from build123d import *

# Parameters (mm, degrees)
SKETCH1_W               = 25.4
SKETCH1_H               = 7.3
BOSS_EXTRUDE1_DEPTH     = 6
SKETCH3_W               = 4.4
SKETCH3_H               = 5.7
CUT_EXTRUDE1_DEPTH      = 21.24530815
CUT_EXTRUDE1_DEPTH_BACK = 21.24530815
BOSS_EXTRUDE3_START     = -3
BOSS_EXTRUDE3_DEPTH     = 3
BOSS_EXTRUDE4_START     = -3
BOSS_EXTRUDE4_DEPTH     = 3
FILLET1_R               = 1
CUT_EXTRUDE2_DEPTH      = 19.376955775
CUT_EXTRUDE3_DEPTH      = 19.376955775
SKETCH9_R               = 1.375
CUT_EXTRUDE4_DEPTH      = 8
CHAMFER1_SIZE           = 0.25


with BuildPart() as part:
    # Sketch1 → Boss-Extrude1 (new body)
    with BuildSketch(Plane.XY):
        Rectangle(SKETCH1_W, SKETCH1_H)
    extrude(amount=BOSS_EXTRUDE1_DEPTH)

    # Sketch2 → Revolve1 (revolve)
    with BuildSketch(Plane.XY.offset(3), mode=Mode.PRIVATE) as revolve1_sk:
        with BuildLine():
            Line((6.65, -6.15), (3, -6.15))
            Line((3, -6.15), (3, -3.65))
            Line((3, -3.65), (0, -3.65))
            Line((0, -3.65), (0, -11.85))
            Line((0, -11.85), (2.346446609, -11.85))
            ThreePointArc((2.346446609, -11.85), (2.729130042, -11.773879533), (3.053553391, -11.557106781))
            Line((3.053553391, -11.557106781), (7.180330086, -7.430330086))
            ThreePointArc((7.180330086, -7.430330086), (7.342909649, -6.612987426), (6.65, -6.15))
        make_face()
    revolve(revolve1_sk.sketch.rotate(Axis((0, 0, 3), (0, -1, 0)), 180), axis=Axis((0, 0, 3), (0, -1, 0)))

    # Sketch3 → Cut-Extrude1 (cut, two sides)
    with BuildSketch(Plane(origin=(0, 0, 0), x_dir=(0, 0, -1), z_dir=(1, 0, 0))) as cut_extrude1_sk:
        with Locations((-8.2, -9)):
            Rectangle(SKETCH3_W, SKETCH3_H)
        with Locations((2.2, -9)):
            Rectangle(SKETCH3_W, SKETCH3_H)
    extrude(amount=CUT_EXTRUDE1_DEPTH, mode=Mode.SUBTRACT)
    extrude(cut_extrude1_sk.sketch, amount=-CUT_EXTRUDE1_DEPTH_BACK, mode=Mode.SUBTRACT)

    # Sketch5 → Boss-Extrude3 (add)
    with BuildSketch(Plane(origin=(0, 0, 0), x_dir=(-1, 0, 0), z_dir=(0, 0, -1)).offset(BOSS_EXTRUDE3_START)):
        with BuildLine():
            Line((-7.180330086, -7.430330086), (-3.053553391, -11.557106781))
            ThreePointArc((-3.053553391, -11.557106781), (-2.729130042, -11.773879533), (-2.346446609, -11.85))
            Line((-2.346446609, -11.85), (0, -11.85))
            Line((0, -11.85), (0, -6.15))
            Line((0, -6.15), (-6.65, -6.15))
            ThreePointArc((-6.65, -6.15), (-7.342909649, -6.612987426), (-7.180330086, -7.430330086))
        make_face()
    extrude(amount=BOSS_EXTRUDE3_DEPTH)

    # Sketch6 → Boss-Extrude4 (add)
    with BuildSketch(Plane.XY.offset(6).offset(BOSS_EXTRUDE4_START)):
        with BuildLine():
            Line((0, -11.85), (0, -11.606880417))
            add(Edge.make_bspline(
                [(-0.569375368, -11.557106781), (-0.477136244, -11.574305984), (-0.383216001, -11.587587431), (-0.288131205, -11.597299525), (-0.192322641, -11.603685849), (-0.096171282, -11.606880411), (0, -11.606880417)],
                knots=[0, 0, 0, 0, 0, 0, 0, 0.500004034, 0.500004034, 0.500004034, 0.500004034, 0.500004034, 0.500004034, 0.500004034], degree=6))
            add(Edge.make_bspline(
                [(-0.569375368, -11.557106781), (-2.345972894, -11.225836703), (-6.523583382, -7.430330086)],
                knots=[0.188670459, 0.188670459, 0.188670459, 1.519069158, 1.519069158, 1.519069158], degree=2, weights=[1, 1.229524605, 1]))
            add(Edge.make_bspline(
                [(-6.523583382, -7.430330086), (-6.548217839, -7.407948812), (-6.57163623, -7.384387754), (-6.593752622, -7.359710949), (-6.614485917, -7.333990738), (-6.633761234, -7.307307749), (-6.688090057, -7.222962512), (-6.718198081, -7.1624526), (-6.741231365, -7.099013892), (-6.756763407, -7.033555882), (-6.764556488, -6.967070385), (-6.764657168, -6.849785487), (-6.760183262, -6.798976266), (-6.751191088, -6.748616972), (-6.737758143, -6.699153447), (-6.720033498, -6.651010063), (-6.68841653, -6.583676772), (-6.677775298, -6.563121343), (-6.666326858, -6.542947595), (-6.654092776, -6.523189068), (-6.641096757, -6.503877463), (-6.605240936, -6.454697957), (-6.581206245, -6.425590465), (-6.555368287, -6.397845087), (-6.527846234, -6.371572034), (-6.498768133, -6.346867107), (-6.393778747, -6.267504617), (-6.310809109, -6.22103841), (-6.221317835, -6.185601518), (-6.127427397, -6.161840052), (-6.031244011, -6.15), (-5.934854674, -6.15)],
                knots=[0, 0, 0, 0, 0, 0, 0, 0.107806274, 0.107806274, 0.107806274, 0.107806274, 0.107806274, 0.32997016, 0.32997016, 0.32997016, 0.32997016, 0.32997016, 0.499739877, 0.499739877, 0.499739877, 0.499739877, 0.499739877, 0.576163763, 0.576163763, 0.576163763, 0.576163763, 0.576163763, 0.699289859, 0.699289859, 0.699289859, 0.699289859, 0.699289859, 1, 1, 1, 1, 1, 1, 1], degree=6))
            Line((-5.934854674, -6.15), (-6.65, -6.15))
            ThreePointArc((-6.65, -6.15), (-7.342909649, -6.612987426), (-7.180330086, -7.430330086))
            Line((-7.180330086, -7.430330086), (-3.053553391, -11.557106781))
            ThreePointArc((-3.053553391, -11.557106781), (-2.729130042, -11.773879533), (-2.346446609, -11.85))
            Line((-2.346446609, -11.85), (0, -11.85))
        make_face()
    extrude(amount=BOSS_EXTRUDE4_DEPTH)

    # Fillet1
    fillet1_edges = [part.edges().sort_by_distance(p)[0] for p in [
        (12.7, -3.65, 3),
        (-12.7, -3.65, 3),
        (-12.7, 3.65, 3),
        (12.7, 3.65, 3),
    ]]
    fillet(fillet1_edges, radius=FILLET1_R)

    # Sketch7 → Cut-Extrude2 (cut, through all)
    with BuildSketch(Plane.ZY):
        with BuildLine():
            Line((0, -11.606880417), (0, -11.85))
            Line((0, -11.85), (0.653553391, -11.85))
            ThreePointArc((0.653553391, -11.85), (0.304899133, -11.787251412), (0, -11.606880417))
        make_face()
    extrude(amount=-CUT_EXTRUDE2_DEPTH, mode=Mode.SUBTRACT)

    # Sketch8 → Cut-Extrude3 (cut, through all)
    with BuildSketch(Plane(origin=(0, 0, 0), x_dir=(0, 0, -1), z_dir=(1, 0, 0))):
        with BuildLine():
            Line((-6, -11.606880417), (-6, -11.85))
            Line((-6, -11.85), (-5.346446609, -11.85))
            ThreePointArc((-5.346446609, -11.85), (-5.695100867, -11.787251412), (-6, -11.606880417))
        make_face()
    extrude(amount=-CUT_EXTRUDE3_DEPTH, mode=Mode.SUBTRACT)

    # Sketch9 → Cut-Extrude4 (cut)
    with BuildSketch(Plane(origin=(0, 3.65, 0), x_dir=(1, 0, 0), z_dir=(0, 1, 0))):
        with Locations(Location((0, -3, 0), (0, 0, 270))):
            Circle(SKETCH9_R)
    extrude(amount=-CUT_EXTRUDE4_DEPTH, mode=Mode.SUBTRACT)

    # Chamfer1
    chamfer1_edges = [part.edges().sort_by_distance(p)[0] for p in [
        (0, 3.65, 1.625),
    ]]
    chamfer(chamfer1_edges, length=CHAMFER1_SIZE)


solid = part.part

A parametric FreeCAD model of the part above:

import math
import FreeCAD as App
import Part
import Sketcher

V = App.Vector
Q = App.Units.Quantity


def edges_at(feature, points):
    """Names of the edges that pass closest to the given points."""
    edges = feature.Shape.Edges
    near = lambda p: min(range(len(edges)), key=lambda i: edges[i].distToShape(Part.Vertex(*p))[0])
    return sorted({f"Edge{near(p) + 1}" for p in points})

doc = App.newDocument("Part")
body = doc.addObject("PartDesign::Body", "Body")

# Sketch on XY plane
sketch1 = doc.addObject("Sketcher::SketchObject", "Sketch")
body.addObject(sketch1)
sketch1.AttachmentSupport = (doc.XY_Plane, [""])
sketch1.MapMode = "FlatFace"
sketch1.addGeometry([
    Part.LineSegment(V(-13, 4, 0), V(-13, -4, 0)),
    Part.LineSegment(V(-13, -4, 0), V(13, -4, 0)),
    Part.LineSegment(V(13, -4, 0), V(13, 4, 0)),
    Part.LineSegment(V(13, 4, 0), V(-13, 4, 0)),
], False)
sketch1.addConstraint([
    Sketcher.Constraint("Coincident", 0, 2, 1, 1),
    Sketcher.Constraint("Coincident", 1, 2, 2, 1),
    Sketcher.Constraint("Coincident", 2, 2, 3, 1),
    Sketcher.Constraint("Coincident", 3, 2, 0, 1),
    Sketcher.Constraint("Vertical", 0),
    Sketcher.Constraint("Horizontal", 1),
    Sketcher.Constraint("Vertical", 2),
    Sketcher.Constraint("Horizontal", 3),
    Sketcher.Constraint("Symmetric", 0, 2, 2, 2, -1, 1),
    Sketcher.Constraint("DistanceX", 1, 1, 1, 2, Q("25.4 mm")),
    Sketcher.Constraint("DistanceY", 0, 2, 0, 1, Q("7.3 mm")),
])
pad1 = doc.addObject("PartDesign::Pad", "Pad")
body.addObject(pad1)
pad1.Profile = sketch1
pad1.Length = 6

# Sketch on XY plane
sketch2 = doc.addObject("Sketcher::SketchObject", "Sketch001")
body.addObject(sketch2)
sketch2.AttachmentSupport = (doc.XY_Plane, [""])
sketch2.MapMode = "FlatFace"
sketch2.AttachmentOffset = App.Placement(V(0, 0, 3), App.Rotation())
sketch2.addGeometry([
    Part.LineSegment(V(6.7, -6.2, 0), V(3, -6.2, 0)),  # 0
    Part.LineSegment(V(3, -6.2, 0), V(3, -3.6, 0)),  # 1
    Part.LineSegment(V(3, -3.6, 0), V(0, -3.6, 0)),  # 2
    Part.LineSegment(V(0, -3.6, 0), V(0, -11.8, 0)),  # 3
    Part.LineSegment(V(0, -11.8, 0), V(2.3, -11.8, 0)),  # 4
    Part.ArcOfCircle(Part.Circle(V(2.3, -10.9, 0), V(0, 0, 1), 1), math.radians(-90), math.radians(-45)),  # 5
    Part.LineSegment(V(3.1, -11.6, 0), V(7.2, -7.4, 0)),  # 6
    Part.ArcOfCircle(Part.Circle(V(6.6, -6.9, 0), V(0, 0, 1), 0.8), math.radians(-45), math.radians(90)),  # 7
], False)
sketch2.addConstraint([
    Sketcher.Constraint("Coincident", 0, 2, 1, 1),
    Sketcher.Constraint("Coincident", 1, 2, 2, 1),
    Sketcher.Constraint("Coincident", 2, 2, 3, 1),
    Sketcher.Constraint("Coincident", 3, 2, 4, 1),
    Sketcher.Constraint("Tangent", 4, 2, 5, 1),
    Sketcher.Constraint("Tangent", 5, 2, 6, 1),
    Sketcher.Constraint("Tangent", 6, 2, 7, 1),
    Sketcher.Constraint("Tangent", 7, 2, 0, 1),
    Sketcher.Constraint("Horizontal", 0),
    Sketcher.Constraint("Vertical", 1),
    Sketcher.Constraint("Horizontal", 2),
    Sketcher.Constraint("Vertical", 3),
    Sketcher.Constraint("Horizontal", 4),
    Sketcher.Constraint("PointOnObject", 2, 2, -2),
    Sketcher.Constraint("Radius", 5, Q("1 mm")),
    Sketcher.Constraint("DistanceX", 2, 2, 2, 1, Q("3 mm")),
    Sketcher.Constraint("Angle", 6, Q("45 deg")),
    Sketcher.Constraint("Radius", 7, Q("0.75 mm")),
    Sketcher.Constraint("DistanceY", 1, 1, 1, 2, Q("2.5 mm")),
    Sketcher.Constraint("DistanceY", 3, 2, 3, 1, Q("8.2 mm")),
    Sketcher.Constraint("DistanceX", 0, 2, 0, 1, Q("3.65 mm")),
    Sketcher.Constraint("DistanceY", 7, 3, -1, 1, Q("6.9 mm")),
])
revolution = doc.addObject("PartDesign::Revolution", "Revolution")
body.addObject(revolution)
revolution.Profile = sketch2
revolution.ReferenceAxis = (sketch2, ["V_Axis"])
revolution.Angle = 360

# Sketch on YZ plane
sketch3 = doc.addObject("Sketcher::SketchObject", "Sketch002")
body.addObject(sketch3)
sketch3.AttachmentSupport = (doc.YZ_Plane, [""])
sketch3.MapMode = "FlatFace"
sketch3.addGeometry([
    Part.LineSegment(V(-6.2, 10.4, 0), V(-11.8, 10.4, 0)),  # 0
    Part.LineSegment(V(-11.8, 10.4, 0), V(-11.8, 6, 0)),  # 1
    Part.LineSegment(V(-11.8, 6, 0), V(-6.2, 6, 0)),  # 2
    Part.LineSegment(V(-6.2, 6, 0), V(-6.2, 10.4, 0)),  # 3
    Part.LineSegment(V(-6.2, 0, 0), V(-11.8, 0, 0)),  # 4
    Part.LineSegment(V(-11.8, 0, 0), V(-11.8, -4.4, 0)),  # 5
    Part.LineSegment(V(-11.8, -4.4, 0), V(-6.2, -4.4, 0)),  # 6
    Part.LineSegment(V(-6.2, -4.4, 0), V(-6.2, 0, 0)),  # 7
], False)
sketch3.addConstraint([
    Sketcher.Constraint("Coincident", 0, 2, 1, 1),
    Sketcher.Constraint("Coincident", 1, 2, 2, 1),
    Sketcher.Constraint("Coincident", 2, 2, 3, 1),
    Sketcher.Constraint("Coincident", 3, 2, 0, 1),
    Sketcher.Constraint("Coincident", 4, 2, 5, 1),
    Sketcher.Constraint("Coincident", 5, 2, 6, 1),
    Sketcher.Constraint("Coincident", 6, 2, 7, 1),
    Sketcher.Constraint("Coincident", 7, 2, 4, 1),
    Sketcher.Constraint("Horizontal", 0),
    Sketcher.Constraint("Vertical", 1),
    Sketcher.Constraint("Horizontal", 2),
    Sketcher.Constraint("Vertical", 3),
    Sketcher.Constraint("Horizontal", 4),
    Sketcher.Constraint("Vertical", 5),
    Sketcher.Constraint("Horizontal", 6),
    Sketcher.Constraint("Vertical", 7),
    Sketcher.Constraint("PointOnObject", 4, 2, -1),
    Sketcher.Constraint("Vertical", 1, 2, 4, 2),
    Sketcher.Constraint("Vertical", 3, 2, 6, 2),
    Sketcher.Constraint("Equal", 3, 5),
    Sketcher.Constraint("DistanceX", 0, 2, 0, 1, Q("5.7 mm")),
    Sketcher.Constraint("DistanceY", 1, 2, 1, 1, Q("4.4 mm")),
    Sketcher.Constraint("DistanceY", -1, 1, 1, 2, Q("6 mm")),
    Sketcher.Constraint("DistanceX", 0, 2, -1, 1, Q("11.85 mm")),
])
pocket1 = doc.addObject("PartDesign::Pocket", "Pocket")
body.addObject(pocket1)
pocket1.Profile = sketch3
pocket1.Type = "ThroughAll"
pocket1.Midplane = True

# Sketch on XY plane
sketch4 = doc.addObject("Sketcher::SketchObject", "Sketch003")
body.addObject(sketch4)
sketch4.AttachmentSupport = (doc.XY_Plane, [""])
sketch4.MapMode = "FlatFace"
sketch4.AttachmentOffset = App.Placement(V(0, 0, 3), App.Rotation())
sketch4.addGeometry([
    Part.LineSegment(V(7.2, -7.4, 0), V(3.1, -11.6, 0)),  # 0
    Part.ArcOfCircle(Part.Circle(V(2.3, -10.9, 0), V(0, 0, 1), 1), math.radians(-90), math.radians(-45)),  # 1
    Part.LineSegment(V(2.3, -11.8, 0), V(0, -11.8, 0)),  # 2
    Part.LineSegment(V(0, -11.8, 0), V(0, -6.2, 0)),  # 3
    Part.LineSegment(V(0, -6.2, 0), V(6.7, -6.2, 0)),  # 4
    Part.ArcOfCircle(Part.Circle(V(6.6, -6.9, 0), V(0, 0, 1), 0.8), math.radians(-45), math.radians(90)),  # 5
], False)
sketch4.addConstraint([
    Sketcher.Constraint("Tangent", 0, 2, 1, 2),
    Sketcher.Constraint("Tangent", 1, 1, 2, 1),
    Sketcher.Constraint("Coincident", 2, 2, 3, 1),
    Sketcher.Constraint("Coincident", 3, 2, 4, 1),
    Sketcher.Constraint("Tangent", 4, 2, 5, 2),
    Sketcher.Constraint("Tangent", 5, 1, 0, 1),
    Sketcher.Constraint("Horizontal", 2),
    Sketcher.Constraint("Vertical", 3),
    Sketcher.Constraint("Horizontal", 4),
    Sketcher.Constraint("PointOnObject", 2, 2, -2),
    Sketcher.Constraint("Radius", 1, Q("1 mm")),
    Sketcher.Constraint("Angle", 0, Q("-135 deg")),
    Sketcher.Constraint("Radius", 5, Q("0.75 mm")),
    Sketcher.Constraint("DistanceY", 3, 1, 3, 2, Q("5.7 mm")),
    Sketcher.Constraint("DistanceX", 4, 1, 4, 2, Q("6.65 mm")),
    Sketcher.Constraint("DistanceY", 5, 3, -1, 1, Q("6.9 mm")),
])
pad2 = doc.addObject("PartDesign::Pad", "Pad001")
body.addObject(pad2)
pad2.Profile = sketch4
pad2.Length = 3
pad2.Reversed = True

# Sketch on XY plane
sketch5 = doc.addObject("Sketcher::SketchObject", "Sketch004")
body.addObject(sketch5)
sketch5.AttachmentSupport = (doc.XY_Plane, [""])
sketch5.MapMode = "FlatFace"
sketch5.AttachmentOffset = App.Placement(V(0, 0, 3), App.Rotation())
sketch5.addGeometry([
    Part.LineSegment(V(0, -11.85, 0), V(0, -11.60688, 0)),  # 0
    Part.BSplineCurve([V(-0.569375, -11.557107, 0), V(-0.477136, -11.574306, 0), V(-0.383216, -11.587587, 0), V(-0.288131, -11.5973, 0), V(-0.192323, -11.603686, 0), V(-0.096171, -11.60688, 0), V(0, -11.60688, 0)], [7, 7], [0, 0.500004034], False, 6, [1, 1, 1, 1, 1, 1, 1], False),  # 1
    Part.BSplineCurve([V(-0.569375, -11.557107, 0), V(-2.345973, -11.225837, 0), V(-6.523583, -7.43033, 0)], [3, 3], [0.188670459, 1.519069158], False, 2, [1, 1.229524605, 1], False),  # 2
    Part.BSplineCurve([V(-6.523583, -7.43033, 0), V(-6.548218, -7.407949, 0), V(-6.571636, -7.384388, 0), V(-6.593753, -7.359711, 0), V(-6.614486, -7.333991, 0), V(-6.633761, -7.307308, 0), V(-6.68809, -7.222963, 0), V(-6.718198, -7.162453, 0), V(-6.741231, -7.099014, 0), V(-6.756763, -7.033556, 0), V(-6.764556, -6.96707, 0), V(-6.764657, -6.849785, 0), V(-6.760183, -6.798976, 0), V(-6.751191, -6.748617, 0), V(-6.737758, -6.699153, 0), V(-6.720033, -6.65101, 0), V(-6.688417, -6.583677, 0), V(-6.677775, -6.563121, 0), V(-6.666327, -6.542948, 0), V(-6.654093, -6.523189, 0), V(-6.641097, -6.503877, 0), V(-6.605241, -6.454698, 0), V(-6.581206, -6.42559, 0), V(-6.555368, -6.397845, 0), V(-6.527846, -6.371572, 0), V(-6.498768, -6.346867, 0), V(-6.393779, -6.267505, 0), V(-6.310809, -6.221038, 0), V(-6.221318, -6.185602, 0), V(-6.127427, -6.16184, 0), V(-6.031244, -6.15, 0), V(-5.934855, -6.15, 0)], [7, 5, 5, 5, 5, 5, 7], [0, 0.107806274, 0.32997016, 0.499739877, 0.576163763, 0.699289859, 1], False, 6, [1, 1, 1, 1, 1, 1, 1, 1, 1, 1, 1, 1, 1, 1, 1, 1, 1, 1, 1, 1, 1, 1, 1, 1, 1, 1, 1, 1, 1, 1, 1, 1], False),  # 3
    Part.LineSegment(V(-5.934855, -6.15, 0), V(-6.65, -6.15, 0)),  # 4
    Part.ArcOfCircle(Part.Circle(V(-6.65, -6.9, 0), V(0, 0, 1), 0.75), math.radians(90), math.radians(225)),  # 5
    Part.LineSegment(V(-7.18033, -7.43033, 0), V(-3.053553, -11.557107, 0)),  # 6
    Part.ArcOfCircle(Part.Circle(V(-2.346447, -10.85, 0), V(0, 0, 1), 1), math.radians(-135), math.radians(-90)),  # 7
    Part.LineSegment(V(-2.346447, -11.85, 0), V(0, -11.85, 0)),  # 8
], False)
sketch5.addConstraint([
    Sketcher.Constraint("Block", 1),
    Sketcher.Constraint("Block", 2),
    Sketcher.Constraint("Block", 3),
    Sketcher.Constraint("Coincident", 0, 2, 1, 2),
    Sketcher.Constraint("Coincident", 3, 2, 4, 1),
    Sketcher.Constraint("Tangent", 4, 2, 5, 1),
    Sketcher.Constraint("Tangent", 5, 2, 6, 1),
    Sketcher.Constraint("Tangent", 6, 2, 7, 1),
    Sketcher.Constraint("Tangent", 7, 2, 8, 1),
    Sketcher.Constraint("Coincident", 8, 2, 0, 1),
    Sketcher.Constraint("Vertical", 0),
    Sketcher.Constraint("Horizontal", 4),
    Sketcher.Constraint("Horizontal", 8),
    Sketcher.Constraint("Radius", 7, Q("1 mm")),
    Sketcher.Constraint("Angle", 6, Q("-45 deg")),
    Sketcher.Constraint("Radius", 5, Q("0.75 mm")),
    Sketcher.Constraint("DistanceY", 7, 3, 4, 2, Q("4.7 mm")),
    Sketcher.Constraint("DistanceX", 5, 3, -1, 1, Q("6.65 mm")),
])
pad3 = doc.addObject("PartDesign::Pad", "Pad002")
body.addObject(pad3)
pad3.Profile = sketch5
pad3.Length = 3
doc.recompute()

fillet = doc.addObject("PartDesign::Fillet", "Fillet")
body.addObject(fillet)
fillet.Base = (pad3, edges_at(pad3, [
    (12.7, -3.65, 3),
    (-12.7, -3.65, 3),
    (-12.7, 3.65, 3),
    (12.7, 3.65, 3),
]))
fillet.Radius = 1

# Sketch on YZ plane
sketch6 = doc.addObject("Sketcher::SketchObject", "Sketch005")
body.addObject(sketch6)
sketch6.AttachmentSupport = (doc.YZ_Plane, [""])
sketch6.MapMode = "FlatFace"
sketch6.addGeometry([
    Part.LineSegment(V(-11.61, 0, 0), V(-11.85, 0, 0)),
    Part.LineSegment(V(-11.85, 0, 0), V(-11.85, 0.65, 0)),
    Part.ArcOfCircle(Part.Circle(V(-10.85, 0.65, 0), V(0, 0, 1), 1), math.radians(180), math.radians(221)),
], False)
sketch6.addConstraint([
    Sketcher.Constraint("Coincident", 0, 2, 1, 1),
    Sketcher.Constraint("Tangent", 1, 2, 2, 1),
    Sketcher.Constraint("Coincident", 2, 2, 0, 1),
    Sketcher.Constraint("Horizontal", 0),
    Sketcher.Constraint("Vertical", 1),
    Sketcher.Constraint("PointOnObject", 0, 2, -1),
    Sketcher.Constraint("Radius", 2, Q("1 mm")),
    Sketcher.Constraint("DistanceX", 2, 3, -1, 1, Q("10.85 mm")),
    Sketcher.Constraint("DistanceX", 0, 2, 0, 1, Q("0.24312 mm")),
])
pocket2 = doc.addObject("PartDesign::Pocket", "Pocket001")
body.addObject(pocket2)
pocket2.Profile = sketch6
pocket2.Type = "ThroughAll"
pocket2.Reversed = True

# Sketch on YZ plane
sketch7 = doc.addObject("Sketcher::SketchObject", "Sketch006")
body.addObject(sketch7)
sketch7.AttachmentSupport = (doc.YZ_Plane, [""])
sketch7.MapMode = "FlatFace"
sketch7.addGeometry([
    Part.LineSegment(V(-11.61, 6, 0), V(-11.85, 6, 0)),
    Part.LineSegment(V(-11.85, 6, 0), V(-11.85, 5.35, 0)),
    Part.ArcOfCircle(Part.Circle(V(-10.85, 5.35, 0), V(0, 0, 1), 1), math.radians(139), math.radians(180)),
], False)
sketch7.addConstraint([
    Sketcher.Constraint("Coincident", 0, 2, 1, 1),
    Sketcher.Constraint("Tangent", 1, 2, 2, 2),
    Sketcher.Constraint("Coincident", 2, 1, 0, 1),
    Sketcher.Constraint("Horizontal", 0),
    Sketcher.Constraint("Vertical", 1),
    Sketcher.Constraint("Radius", 2, Q("1 mm")),
    Sketcher.Constraint("DistanceY", -1, 1, 0, 2, Q("6 mm")),
    Sketcher.Constraint("DistanceX", 2, 3, -1, 1, Q("10.85 mm")),
    Sketcher.Constraint("DistanceX", 0, 2, 0, 1, Q("0.24312 mm")),
])
pocket3 = doc.addObject("PartDesign::Pocket", "Pocket002")
body.addObject(pocket3)
pocket3.Profile = sketch7
pocket3.Type = "ThroughAll"

# Sketch on XZ plane
sketch8 = doc.addObject("Sketcher::SketchObject", "Sketch007")
body.addObject(sketch8)
sketch8.AttachmentSupport = (doc.XZ_Plane, [""])
sketch8.MapMode = "FlatFace"
sketch8.AttachmentOffset = App.Placement(V(0, 0, -3.65), App.Rotation())
sketch8.addGeometry(Part.Circle(V(0, 3, 0), V(0, 0, 1), 1.4), False)
sketch8.addConstraint([
    Sketcher.Constraint("PointOnObject", 0, 3, -2),
    Sketcher.Constraint("Diameter", 0, Q("2.75 mm")),
    Sketcher.Constraint("DistanceY", -1, 1, 0, 3, Q("3 mm")),
])
pocket4 = doc.addObject("PartDesign::Pocket", "Pocket003")
body.addObject(pocket4)
pocket4.Profile = sketch8
pocket4.Length = 8
pocket4.Reversed = True
doc.recompute()

chamfer = doc.addObject("PartDesign::Chamfer", "Chamfer")
body.addObject(chamfer)
chamfer.Base = (pocket4, edges_at(pocket4, [(0, 3.65, 1.625)]))
chamfer.Size = 0.25

doc.recompute()
